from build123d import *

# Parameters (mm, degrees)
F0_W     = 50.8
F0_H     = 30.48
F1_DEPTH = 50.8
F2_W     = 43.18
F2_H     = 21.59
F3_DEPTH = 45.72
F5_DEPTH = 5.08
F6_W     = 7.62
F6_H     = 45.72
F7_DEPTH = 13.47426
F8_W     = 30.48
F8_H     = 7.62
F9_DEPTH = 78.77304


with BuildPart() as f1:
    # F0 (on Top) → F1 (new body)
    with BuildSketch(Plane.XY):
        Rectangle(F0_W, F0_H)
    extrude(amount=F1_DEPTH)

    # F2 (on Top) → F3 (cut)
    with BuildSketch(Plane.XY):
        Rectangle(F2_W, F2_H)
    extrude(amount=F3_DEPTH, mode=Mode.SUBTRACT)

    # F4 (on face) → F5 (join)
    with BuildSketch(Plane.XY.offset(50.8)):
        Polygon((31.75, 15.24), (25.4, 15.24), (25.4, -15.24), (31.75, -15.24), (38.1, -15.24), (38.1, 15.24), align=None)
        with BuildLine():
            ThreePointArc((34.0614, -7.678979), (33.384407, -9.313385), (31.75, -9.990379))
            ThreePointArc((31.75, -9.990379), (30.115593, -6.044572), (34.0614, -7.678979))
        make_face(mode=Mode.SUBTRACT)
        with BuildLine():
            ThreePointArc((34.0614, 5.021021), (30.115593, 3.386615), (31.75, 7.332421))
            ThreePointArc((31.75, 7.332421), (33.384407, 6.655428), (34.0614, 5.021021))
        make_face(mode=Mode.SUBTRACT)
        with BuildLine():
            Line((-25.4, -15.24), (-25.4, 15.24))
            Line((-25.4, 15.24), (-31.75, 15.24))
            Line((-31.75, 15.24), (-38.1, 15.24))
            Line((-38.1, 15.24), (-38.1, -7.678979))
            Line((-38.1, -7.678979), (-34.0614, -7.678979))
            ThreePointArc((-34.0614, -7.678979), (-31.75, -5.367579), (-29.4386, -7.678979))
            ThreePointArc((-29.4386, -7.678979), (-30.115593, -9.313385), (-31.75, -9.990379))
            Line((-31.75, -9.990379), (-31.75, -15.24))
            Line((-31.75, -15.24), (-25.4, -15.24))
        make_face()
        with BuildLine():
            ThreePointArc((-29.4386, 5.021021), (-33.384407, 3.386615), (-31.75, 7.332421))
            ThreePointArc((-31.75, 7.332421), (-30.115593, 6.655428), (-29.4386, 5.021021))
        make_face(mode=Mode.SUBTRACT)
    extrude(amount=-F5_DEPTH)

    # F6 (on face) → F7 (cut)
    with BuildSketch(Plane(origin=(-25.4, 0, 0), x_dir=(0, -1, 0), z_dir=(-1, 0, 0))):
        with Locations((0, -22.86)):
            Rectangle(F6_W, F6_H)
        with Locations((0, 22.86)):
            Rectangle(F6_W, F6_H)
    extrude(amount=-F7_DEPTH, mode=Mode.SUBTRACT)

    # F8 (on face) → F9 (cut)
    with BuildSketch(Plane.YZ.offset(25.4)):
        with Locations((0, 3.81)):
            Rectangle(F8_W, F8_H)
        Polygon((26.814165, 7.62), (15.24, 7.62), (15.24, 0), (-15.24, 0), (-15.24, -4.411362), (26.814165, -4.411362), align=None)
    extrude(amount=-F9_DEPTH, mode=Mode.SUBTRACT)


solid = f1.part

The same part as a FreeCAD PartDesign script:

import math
import FreeCAD as App
import Part
import Sketcher
Q = App.Units.Quantity


def add_polygon(sketch, points):
    """Adds a closed chain of lines whose ends are joined by coincident constraints."""
    first, n = sketch.GeometryCount, len(points)
    for a, b in zip(points, points[1:] + points[:1]):
        sketch.addGeometry(Part.LineSegment(App.Vector(*a, 0), App.Vector(*b, 0)), False)
    for i in range(n):
        sketch.addConstraint(Sketcher.Constraint("Coincident", first + i, 2, first + (i + 1) % n, 1))

doc = App.newDocument("Part")
body = doc.addObject("PartDesign::Body", "Body")

# Sketch on XY plane
sketch1 = doc.addObject("Sketcher::SketchObject", "Sketch")
body.addObject(sketch1)
sketch1.AttachmentSupport = (doc.XY_Plane, [""])
sketch1.MapMode = "FlatFace"
add_polygon(sketch1, [(-25, 15), (-25, -15), (25, -15), (25, 15)])  # lines 0-3
sketch1.addConstraint([
    Sketcher.Constraint("Vertical", 0),
    Sketcher.Constraint("Horizontal", 1),
    Sketcher.Constraint("Vertical", 2),
    Sketcher.Constraint("Horizontal", 3),
    Sketcher.Constraint("Symmetric", 0, 2, 2, 2, -1, 1),
    Sketcher.Constraint("DistanceX", 1, 1, 1, 2, Q("2 in")),
    Sketcher.Constraint("DistanceY", 0, 2, 0, 1, Q("1.2 in")),
])
pad1 = doc.addObject("PartDesign::Pad", "Pad")
body.addObject(pad1)
pad1.Profile = sketch1
pad1.Length = Q("2 in")

# Sketch on XY plane
sketch2 = doc.addObject("Sketcher::SketchObject", "Sketch001")
body.addObject(sketch2)
sketch2.AttachmentSupport = (doc.XY_Plane, [""])
sketch2.MapMode = "FlatFace"
add_polygon(sketch2, [(-22, 11), (-22, -11), (22, -11), (22, 11)])  # lines 0-3
sketch2.addConstraint([
    Sketcher.Constraint("Vertical", 0),
    Sketcher.Constraint("Horizontal", 1),
    Sketcher.Constraint("Vertical", 2),
    Sketcher.Constraint("Horizontal", 3),
    Sketcher.Constraint("Symmetric", 0, 2, 2, 2, -1, 1),
    Sketcher.Constraint("DistanceX", 1, 1, 1, 2, Q("1.7 in")),
    Sketcher.Constraint("DistanceY", 0, 2, 0, 1, Q("0.85 in")),
])
pocket1 = doc.addObject("PartDesign::Pocket", "Pocket")
body.addObject(pocket1)
pocket1.Profile = sketch2
pocket1.Length = Q("1.8 in")
pocket1.Reversed = True

# Sketch on XY plane
sketch3 = doc.addObject("Sketcher::SketchObject", "Sketch002")
body.addObject(sketch3)
sketch3.AttachmentSupport = (doc.XY_Plane, [""])
sketch3.MapMode = "FlatFace"
sketch3.AttachmentOffset = App.Placement(App.Vector(0, 0, 2 * 25.4), App.Rotation())
add_polygon(sketch3, [(25.4, 15.2), (25.4, -15.2), (38.1, -15.2), (38.1, 15.2)])  # lines 0-3
sketch3.addGeometry(Part.ArcOfCircle(Part.Circle(App.Vector(31.7, -7.7, 0), App.Vector(0, 0, 1), 2.3), math.radians(0), math.radians(270)), False)  # 4
sketch3.addGeometry(Part.ArcOfCircle(Part.Circle(App.Vector(31.7, -7.7, 0), App.Vector(0, 0, 1), 2.3), math.radians(-90), math.radians(0)), False)  # 5
sketch3.addGeometry(Part.ArcOfCircle(Part.Circle(App.Vector(31.8, 5, 0), App.Vector(0, 0, 1), 2.3), math.radians(0), math.radians(90)), False)  # 6
sketch3.addGeometry(Part.ArcOfCircle(Part.Circle(App.Vector(31.8, 5, 0), App.Vector(0, 0, 1), 2.3), math.radians(90), math.radians(360)), False)  # 7
sketch3.addGeometry(Part.LineSegment(App.Vector(-25.4, -15.2, 0), App.Vector(-25.4, 15.2, 0)), False)  # 8
sketch3.addGeometry(Part.LineSegment(App.Vector(-25.4, 15.2, 0), App.Vector(-38.1, 15.2, 0)), False)  # 9
sketch3.addGeometry(Part.LineSegment(App.Vector(-38.1, 15.2, 0), App.Vector(-38.1, -7.7, 0)), False)  # 10
sketch3.addGeometry(Part.LineSegment(App.Vector(-38.1, -7.7, 0), App.Vector(-34.1, -7.7, 0)), False)  # 11
sketch3.addGeometry(Part.ArcOfCircle(Part.Circle(App.Vector(-31.8, -7.7, 0), App.Vector(0, 0, 1), 2.3), math.radians(0), math.radians(180)), False)  # 12
sketch3.addGeometry(Part.ArcOfCircle(Part.Circle(App.Vector(-31.8, -7.7, 0), App.Vector(0, 0, 1), 2.3), math.radians(-90), math.radians(0)), False)  # 13
sketch3.addGeometry(Part.LineSegment(App.Vector(-31.8, -10, 0), App.Vector(-31.8, -15.2, 0)), False)  # 14
sketch3.addGeometry(Part.LineSegment(App.Vector(-31.8, -15.2, 0), App.Vector(-25.4, -15.2, 0)), False)  # 15
sketch3.addGeometry(Part.ArcOfCircle(Part.Circle(App.Vector(-31.7, 5, 0), App.Vector(0, 0, 1), 2.3), math.radians(0), math.radians(90)), False)  # 16
sketch3.addGeometry(Part.ArcOfCircle(Part.Circle(App.Vector(-31.7, 5, 0), App.Vector(0, 0, 1), 2.3), math.radians(90), math.radians(360)), False)  # 17
sketch3.addConstraint([
    Sketcher.Constraint("Tangent", 4, 1, 5, 2),
    Sketcher.Constraint("Coincident", 5, 1, 4, 2),
    Sketcher.Constraint("Tangent", 6, 1, 7, 2),
    Sketcher.Constraint("Coincident", 7, 1, 6, 2),
    Sketcher.Constraint("Coincident", 8, 2, 9, 1),
    Sketcher.Constraint("Coincident", 9, 2, 10, 1),
    Sketcher.Constraint("Coincident", 10, 2, 11, 1),
    Sketcher.Constraint("Coincident", 11, 2, 12, 2),
    Sketcher.Constraint("Tangent", 12, 1, 13, 2),
    Sketcher.Constraint("Coincident", 13, 1, 14, 1),
    Sketcher.Constraint("Coincident", 14, 2, 15, 1),
    Sketcher.Constraint("Coincident", 15, 2, 8, 1),
    Sketcher.Constraint("Tangent", 16, 1, 17, 2),
    Sketcher.Constraint("Coincident", 17, 1, 16, 2),
    Sketcher.Constraint("Vertical", 0),
    Sketcher.Constraint("Horizontal", 1),
    Sketcher.Constraint("Vertical", 2),
    Sketcher.Constraint("Horizontal", 3),
    Sketcher.Constraint("Vertical", 8),
    Sketcher.Constraint("Horizontal", 9),
    Sketcher.Constraint("Vertical", 10),
    Sketcher.Constraint("Horizontal", 11),
    Sketcher.Constraint("Vertical", 14),
    Sketcher.Constraint("Horizontal", 15),
    Sketcher.Constraint("Equal", 5, 6),
    Sketcher.Constraint("Equal", 7, 12),
    Sketcher.Constraint("Equal", 12, 13),
    Sketcher.Constraint("Equal", 13, 16),
    Sketcher.Constraint("Symmetric", 0, 2, 8, 2, -1, 1),
    Sketcher.Constraint("Symmetric", 4, 3, 12, 3, -2),
    Sketcher.Constraint("Symmetric", 6, 3, 16, 3, -2),
    Sketcher.Constraint("Symmetric", 2, 2, 9, 2, -2),
    Sketcher.Constraint("Horizontal", 13, 3, 4, 1),
    Sketcher.Constraint("Horizontal", 17, 3, 6, 1),
    Sketcher.Constraint("Horizontal", 4, 1, 10, 2),
    Sketcher.Constraint("Horizontal", 11, 2, 12, 1),
    Sketcher.Constraint("Horizontal", 1, 2, 14, 2),
    Sketcher.Constraint("Horizontal", 6, 1, 16, 1),
    Sketcher.Constraint("Vertical", 5, 3, 6, 3),
    Sketcher.Constraint("Vertical", 7, 3, 5, 1),
    Sketcher.Constraint("Vertical", 5, 1, 7, 1),
    Sketcher.Constraint("Vertical", 17, 3, 13, 1),
    Sketcher.Constraint("Vertical", 14, 2, 17, 1),
    Sketcher.Constraint("DistanceX", 1, 1, 1, 2, Q("0.5 in")),
    Sketcher.Constraint("DistanceY", 0, 2, 0, 1, Q("1.2 in")),
    Sketcher.Constraint("DistanceX", -1, 1, 0, 2, Q("1 in")),
    Sketcher.Constraint("Radius", 4, Q("0.091 in")),
    Sketcher.Constraint("DistanceX", 15, 1, 15, 2, Q("0.25 in")),
    Sketcher.Constraint("DistanceY", 5, 3, 6, 3, Q("0.5 in")),
    Sketcher.Constraint("DistanceY", 10, 2, 10, 1, Q("22.918979 mm")),
])
pad2 = doc.addObject("PartDesign::Pad", "Pad001")
body.addObject(pad2)
pad2.Profile = sketch3
pad2.Length = Q("0.2 in")
pad2.Reversed = True

# Sketch on YZ plane
sketch4 = doc.addObject("Sketcher::SketchObject", "Sketch003")
body.addObject(sketch4)
sketch4.AttachmentSupport = (doc.YZ_Plane, [""])
sketch4.MapMode = "FlatFace"
sketch4.AttachmentOffset = App.Placement(App.Vector(0, 0, -1 * 25.4), App.Rotation())
add_polygon(sketch4, [(4, -46), (-4, -46), (-4, 46), (4, 46)])  # lines 0-3
sketch4.addConstraint([
    Sketcher.Constraint("Horizontal", 0),
    Sketcher.Constraint("Vertical", 1),
    Sketcher.Constraint("Horizontal", 2),
    Sketcher.Constraint("Vertical", 3),
    Sketcher.Constraint("Symmetric", 0, 2, 2, 2, -1, 1),
    Sketcher.Constraint("DistanceX", 0, 2, 0, 1, Q("0.3 in")),
    Sketcher.Constraint("DistanceY", 1, 1, 1, 2, Q("3.6 in")),
])
pocket2 = doc.addObject("PartDesign::Pocket", "Pocket001")
body.addObject(pocket2)
pocket2.Profile = sketch4
pocket2.Length = 13.47426
pocket2.Reversed = True

# Sketch on YZ plane
sketch5 = doc.addObject("Sketcher::SketchObject", "Sketch004")
body.addObject(sketch5)
sketch5.AttachmentSupport = (doc.YZ_Plane, [""])
sketch5.MapMode = "FlatFace"
sketch5.AttachmentOffset = App.Placement(App.Vector(0, 0, 1 * 25.4), App.Rotation())
add_polygon(sketch5, [(-15, 8), (-15, -4), (27, -4), (27, 8)])  # lines 0-3
sketch5.addConstraint([
    Sketcher.Constraint("Vertical", 0),
    Sketcher.Constraint("Horizontal", 1),
    Sketcher.Constraint("Vertical", 2),
    Sketcher.Constraint("Horizontal", 3),
    Sketcher.Constraint("DistanceX", 0, 2, -1, 1, Q("0.6 in")),
    Sketcher.Constraint("DistanceY", -1, 1, 2, 2, Q("0.3 in")),
    Sketcher.Constraint("DistanceX", 1, 1, 1, 2, Q("42.054165 mm")),
    Sketcher.Constraint("DistanceY", 0, 2, 0, 1, Q("12.031362 mm")),
])
pocket3 = doc.addObject("PartDesign::Pocket", "Pocket002")
body.addObject(pocket3)
pocket3.Profile = sketch5
pocket3.Length = 78.77304

doc.recompute()
